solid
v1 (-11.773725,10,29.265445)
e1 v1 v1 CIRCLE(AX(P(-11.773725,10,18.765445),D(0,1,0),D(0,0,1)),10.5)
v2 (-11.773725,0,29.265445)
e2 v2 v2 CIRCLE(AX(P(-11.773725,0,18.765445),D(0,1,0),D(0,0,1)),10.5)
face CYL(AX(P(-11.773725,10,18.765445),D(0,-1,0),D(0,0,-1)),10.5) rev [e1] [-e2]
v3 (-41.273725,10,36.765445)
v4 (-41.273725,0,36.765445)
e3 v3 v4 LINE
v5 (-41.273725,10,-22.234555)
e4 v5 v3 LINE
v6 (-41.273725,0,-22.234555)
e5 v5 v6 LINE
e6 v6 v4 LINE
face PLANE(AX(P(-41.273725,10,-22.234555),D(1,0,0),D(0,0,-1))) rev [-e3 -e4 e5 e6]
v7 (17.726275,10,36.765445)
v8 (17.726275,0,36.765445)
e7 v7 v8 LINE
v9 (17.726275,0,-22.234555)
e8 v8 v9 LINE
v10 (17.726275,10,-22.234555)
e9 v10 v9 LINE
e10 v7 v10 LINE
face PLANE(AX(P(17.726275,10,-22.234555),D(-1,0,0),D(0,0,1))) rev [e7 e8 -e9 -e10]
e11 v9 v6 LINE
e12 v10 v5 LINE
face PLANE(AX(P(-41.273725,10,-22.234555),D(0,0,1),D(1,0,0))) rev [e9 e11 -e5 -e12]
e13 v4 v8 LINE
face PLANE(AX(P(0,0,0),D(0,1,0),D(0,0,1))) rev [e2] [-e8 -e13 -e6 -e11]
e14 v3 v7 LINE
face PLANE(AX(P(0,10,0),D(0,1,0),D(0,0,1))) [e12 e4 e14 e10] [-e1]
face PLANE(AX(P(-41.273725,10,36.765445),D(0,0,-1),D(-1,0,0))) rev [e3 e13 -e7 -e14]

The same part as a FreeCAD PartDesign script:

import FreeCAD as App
import Part
import Sketcher

doc = App.newDocument("Part")
body = doc.addObject("PartDesign::Body", "Body")

sketch1 = body.newObject("Sketcher::SketchObject", "Sketch")
sketch1.AttachmentSupport = (doc.getObject("XZ_Plane"), [""])
sketch1.MapMode = "FlatFace"
sketch1.addGeometry(Part.LineSegment(App.Vector(-41, -22, 0), App.Vector(-41, 37, 0)), False)
sketch1.addGeometry(Part.LineSegment(App.Vector(-41, 37, 0), App.Vector(18, 37, 0)), False)
sketch1.addGeometry(Part.LineSegment(App.Vector(18, 37, 0), App.Vector(18, -22, 0)), False)
sketch1.addGeometry(Part.LineSegment(App.Vector(18, -22, 0), App.Vector(-41, -22, 0)), False)
sketch1.addGeometry(Part.Circle(App.Vector(-12, 19, 0), App.Vector(0, 0, 1), 10), False)
sketch1.addConstraint(Sketcher.Constraint("Coincident", 0, 2, 1, 1))
sketch1.addConstraint(Sketcher.Constraint("Coincident", 1, 2, 2, 1))
sketch1.addConstraint(Sketcher.Constraint("Coincident", 2, 2, 3, 1))
sketch1.addConstraint(Sketcher.Constraint("Coincident", 3, 2, 0, 1))
sketch1.addConstraint(Sketcher.Constraint("Vertical", 0))
sketch1.addConstraint(Sketcher.Constraint("Horizontal", 1))
sketch1.addConstraint(Sketcher.Constraint("Vertical", 2))
sketch1.addConstraint(Sketcher.Constraint("Horizontal", 3))
sketch1.addConstraint(Sketcher.Constraint("Equal", 3, 0))
sketch1.addConstraint(Sketcher.Constraint("Diameter", 4, 21.0))
sketch1.addConstraint(Sketcher.Constraint("DistanceX", 1, 1, 1, 2, 59.0))
sketch1.addConstraint(Sketcher.Constraint("DistanceY", 4, 3, 0, 2, 18.0))
sketch1.addConstraint(Sketcher.Constraint("DistanceX", 0, 2, 4, 3, 29.5))
sketch1.addConstraint(Sketcher.Constraint("DistanceX", 4, 3, -1, 1, 11.773725))
sketch1.addConstraint(Sketcher.Constraint("DistanceY", -1, 1, 4, 3, 18.765445))
pad1 = body.newObject("PartDesign::Pad", "Pad")
pad1.Profile = sketch1
pad1.Length = 10
pad1.Reversed = True

doc.recompute()
